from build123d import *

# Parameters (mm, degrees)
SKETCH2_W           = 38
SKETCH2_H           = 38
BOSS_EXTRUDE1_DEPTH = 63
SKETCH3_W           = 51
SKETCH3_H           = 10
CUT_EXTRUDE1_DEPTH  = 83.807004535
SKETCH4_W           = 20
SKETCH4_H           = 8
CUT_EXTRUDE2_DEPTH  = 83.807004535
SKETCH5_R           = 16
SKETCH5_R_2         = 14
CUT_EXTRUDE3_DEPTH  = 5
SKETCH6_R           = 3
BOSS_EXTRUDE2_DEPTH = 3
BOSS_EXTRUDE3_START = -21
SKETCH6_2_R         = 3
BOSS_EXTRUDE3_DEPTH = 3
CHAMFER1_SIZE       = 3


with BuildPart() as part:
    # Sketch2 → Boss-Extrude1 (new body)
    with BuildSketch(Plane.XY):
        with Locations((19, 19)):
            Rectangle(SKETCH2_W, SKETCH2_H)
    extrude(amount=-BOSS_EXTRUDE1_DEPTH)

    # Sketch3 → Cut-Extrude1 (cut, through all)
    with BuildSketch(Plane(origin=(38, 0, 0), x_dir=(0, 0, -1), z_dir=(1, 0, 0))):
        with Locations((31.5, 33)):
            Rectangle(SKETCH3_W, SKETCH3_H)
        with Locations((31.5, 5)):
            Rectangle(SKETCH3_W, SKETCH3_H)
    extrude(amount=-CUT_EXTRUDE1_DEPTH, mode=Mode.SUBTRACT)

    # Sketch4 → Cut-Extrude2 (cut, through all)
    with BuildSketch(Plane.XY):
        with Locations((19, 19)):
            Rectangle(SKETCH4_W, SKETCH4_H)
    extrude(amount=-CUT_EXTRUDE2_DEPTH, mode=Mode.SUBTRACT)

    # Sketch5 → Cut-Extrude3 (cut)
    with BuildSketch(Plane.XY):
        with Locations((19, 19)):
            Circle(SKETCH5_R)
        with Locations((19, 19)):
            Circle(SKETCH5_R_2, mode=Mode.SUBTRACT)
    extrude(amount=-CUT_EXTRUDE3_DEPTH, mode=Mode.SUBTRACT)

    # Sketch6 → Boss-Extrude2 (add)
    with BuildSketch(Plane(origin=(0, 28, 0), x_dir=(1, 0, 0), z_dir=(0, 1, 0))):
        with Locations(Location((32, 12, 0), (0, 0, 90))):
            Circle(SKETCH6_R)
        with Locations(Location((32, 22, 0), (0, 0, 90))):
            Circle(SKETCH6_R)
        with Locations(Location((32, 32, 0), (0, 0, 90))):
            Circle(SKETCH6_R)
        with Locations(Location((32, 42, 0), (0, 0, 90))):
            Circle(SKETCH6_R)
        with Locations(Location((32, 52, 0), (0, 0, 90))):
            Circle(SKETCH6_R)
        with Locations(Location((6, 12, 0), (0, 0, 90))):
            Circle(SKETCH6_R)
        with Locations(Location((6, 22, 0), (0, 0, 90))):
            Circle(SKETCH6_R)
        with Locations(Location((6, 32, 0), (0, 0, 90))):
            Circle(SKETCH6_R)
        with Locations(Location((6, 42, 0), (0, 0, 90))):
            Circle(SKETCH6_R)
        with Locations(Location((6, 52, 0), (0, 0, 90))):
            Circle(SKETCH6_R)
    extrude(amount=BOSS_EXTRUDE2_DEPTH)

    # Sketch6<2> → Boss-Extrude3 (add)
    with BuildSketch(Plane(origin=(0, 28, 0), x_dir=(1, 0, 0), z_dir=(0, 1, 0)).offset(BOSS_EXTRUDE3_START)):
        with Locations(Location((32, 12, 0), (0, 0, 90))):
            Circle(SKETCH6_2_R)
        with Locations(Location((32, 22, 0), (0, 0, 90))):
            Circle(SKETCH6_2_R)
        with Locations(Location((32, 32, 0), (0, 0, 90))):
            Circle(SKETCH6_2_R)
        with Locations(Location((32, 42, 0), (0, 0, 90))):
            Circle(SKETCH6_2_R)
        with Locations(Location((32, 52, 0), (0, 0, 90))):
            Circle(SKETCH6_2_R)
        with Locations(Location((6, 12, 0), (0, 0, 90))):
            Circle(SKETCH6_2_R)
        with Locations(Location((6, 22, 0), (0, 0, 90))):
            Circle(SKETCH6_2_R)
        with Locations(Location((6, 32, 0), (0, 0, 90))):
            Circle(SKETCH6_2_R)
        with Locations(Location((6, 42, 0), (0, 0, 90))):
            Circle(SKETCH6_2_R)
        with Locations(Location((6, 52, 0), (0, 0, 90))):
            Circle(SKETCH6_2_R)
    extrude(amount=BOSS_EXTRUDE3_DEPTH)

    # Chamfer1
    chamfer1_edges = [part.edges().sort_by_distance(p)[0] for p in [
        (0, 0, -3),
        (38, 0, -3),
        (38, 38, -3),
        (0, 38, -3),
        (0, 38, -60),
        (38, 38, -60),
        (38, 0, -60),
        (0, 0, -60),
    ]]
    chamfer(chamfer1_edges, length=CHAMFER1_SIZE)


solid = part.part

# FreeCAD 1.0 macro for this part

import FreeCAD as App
import Part
import Sketcher
Q = App.Units.Quantity


def edges_at(feature, points):
    """Names of the edges that pass closest to the given points."""
    edges = feature.Shape.Edges
    near = lambda p: min(range(len(edges)), key=lambda i: edges[i].distToShape(Part.Vertex(*p))[0])
    return sorted({f"Edge{near(p) + 1}" for p in points})


def add_polygon(sketch, points):
    """Adds a closed chain of lines whose ends are joined by coincident constraints."""
    first, n = sketch.GeometryCount, len(points)
    for a, b in zip(points, points[1:] + points[:1]):
        sketch.addGeometry(Part.LineSegment(App.Vector(*a, 0), App.Vector(*b, 0)), False)
    for i in range(n):
        sketch.addConstraint(Sketcher.Constraint("Coincident", first + i, 2, first + (i + 1) % n, 1))

doc = App.newDocument("Part")
body = doc.addObject("PartDesign::Body", "Body")

# Sketch on XY plane
sketch1 = body.newObject("Sketcher::SketchObject", "Sketch")
sketch1.AttachmentSupport = (doc.getObject("XY_Plane"), [""])
sketch1.MapMode = "FlatFace"
add_polygon(sketch1, [(0, 38), (0, 0), (38, 0), (38, 38)])  # lines 0-3
sketch1.addConstraint([
    Sketcher.Constraint("Vertical", 0),
    Sketcher.Constraint("Horizontal", 1),
    Sketcher.Constraint("Vertical", 2),
    Sketcher.Constraint("Horizontal", 3),
    Sketcher.Constraint("Coincident", 0, 2, -1, 1),
    Sketcher.Constraint("Equal", 3, 0),
    Sketcher.Constraint("DistanceX", 1, 1, 1, 2, Q("38 mm")),
])
pad1 = body.newObject("PartDesign::Pad", "Pad")
pad1.Profile = sketch1
pad1.Length = 63
pad1.Reversed = True

# Sketch on YZ plane
sketch2 = body.newObject("Sketcher::SketchObject", "Sketch001")
sketch2.AttachmentSupport = (doc.getObject("YZ_Plane"), [""])
sketch2.MapMode = "FlatFace"
sketch2.AttachmentOffset = App.Placement(App.Vector(0, 0, 38), App.Rotation())
add_polygon(sketch2, [(38, -6), (28, -6), (28, -57), (38, -57)])  # lines 0-3
add_polygon(sketch2, [(10, -6), (0, -6), (0, -57), (10, -57)])  # lines 4-7
sketch2.addConstraint([
    Sketcher.Constraint("Horizontal", 0),
    Sketcher.Constraint("Vertical", 1),
    Sketcher.Constraint("Horizontal", 2),
    Sketcher.Constraint("Vertical", 3),
    Sketcher.Constraint("Horizontal", 4),
    Sketcher.Constraint("Vertical", 5),
    Sketcher.Constraint("Horizontal", 6),
    Sketcher.Constraint("Vertical", 7),
    Sketcher.Constraint("PointOnObject", 4, 2, -2),
    Sketcher.Constraint("Horizontal", 3, 2, 4, 2),
    Sketcher.Constraint("Horizontal", 2, 2, 5, 2),
    Sketcher.Constraint("Equal", 2, 4),
    Sketcher.Constraint("DistanceX", 0, 2, 0, 1, Q("10 mm")),
    Sketcher.Constraint("DistanceY", 1, 2, 1, 1, Q("51 mm")),
    Sketcher.Constraint("DistanceX", -1, 1, 0, 2, Q("28 mm")),
    Sketcher.Constraint("DistanceY", 0, 2, -1, 1, Q("6 mm")),
])
pocket1 = body.newObject("PartDesign::Pocket", "Pocket")
pocket1.Profile = sketch2
pocket1.Type = "ThroughAll"

# Sketch on XY plane
sketch3 = body.newObject("Sketcher::SketchObject", "Sketch002")
sketch3.AttachmentSupport = (doc.getObject("XY_Plane"), [""])
sketch3.MapMode = "FlatFace"
add_polygon(sketch3, [(9, 23), (9, 15), (29, 15), (29, 23)])  # lines 0-3
sketch3.addConstraint([
    Sketcher.Constraint("Vertical", 0),
    Sketcher.Constraint("Horizontal", 1),
    Sketcher.Constraint("Vertical", 2),
    Sketcher.Constraint("Horizontal", 3),
    Sketcher.Constraint("DistanceX", 1, 1, 1, 2, Q("20 mm")),
    Sketcher.Constraint("DistanceY", 0, 2, 0, 1, Q("8 mm")),
    Sketcher.Constraint("DistanceX", -1, 1, 0, 2, Q("9 mm")),
    Sketcher.Constraint("DistanceY", -1, 1, 0, 2, Q("15 mm")),
])
pocket2 = body.newObject("PartDesign::Pocket", "Pocket001")
pocket2.Profile = sketch3
pocket2.Type = "ThroughAll"

# Sketch on XY plane
sketch4 = body.newObject("Sketcher::SketchObject", "Sketch003")
sketch4.AttachmentSupport = (doc.getObject("XY_Plane"), [""])
sketch4.MapMode = "FlatFace"
sketch4.addGeometry([
    Part.Circle(App.Vector(19, 19, 0), App.Vector(0, 0, 1), 16),
    Part.Circle(App.Vector(19, 19, 0), App.Vector(0, 0, 1), 14),
], False)
sketch4.addConstraint([
    Sketcher.Constraint("Coincident", 1, 3, 0, 3),
    Sketcher.Constraint("Diameter", 0, Q("32 mm")),
    Sketcher.Constraint("Diameter", 1, Q("28 mm")),
    Sketcher.Constraint("DistanceX", -1, 1, 0, 3, Q("19 mm")),
    Sketcher.Constraint("DistanceY", -1, 1, 0, 3, Q("19 mm")),
])
pocket3 = body.newObject("PartDesign::Pocket", "Pocket002")
pocket3.Profile = sketch4
pocket3.Length = 5

# Sketch on XZ plane
sketch5 = body.newObject("Sketcher::SketchObject", "Sketch004")
sketch5.AttachmentSupport = (doc.getObject("XZ_Plane"), [""])
sketch5.MapMode = "FlatFace"
sketch5.AttachmentOffset = App.Placement(App.Vector(0, 0, -28), App.Rotation())
sketch5.addGeometry([
    Part.Circle(App.Vector(32, -12, 0), App.Vector(0, 0, 1), 3),  # 0
    Part.Circle(App.Vector(32, -22, 0), App.Vector(0, 0, 1), 3),  # 1
    Part.Circle(App.Vector(32, -32, 0), App.Vector(0, 0, 1), 3),  # 2
    Part.Circle(App.Vector(32, -42, 0), App.Vector(0, 0, 1), 3),  # 3
    Part.Circle(App.Vector(32, -52, 0), App.Vector(0, 0, 1), 3),  # 4
    Part.Circle(App.Vector(6, -12, 0), App.Vector(0, 0, 1), 3),  # 5
    Part.Circle(App.Vector(6, -22, 0), App.Vector(0, 0, 1), 3),  # 6
    Part.Circle(App.Vector(6, -32, 0), App.Vector(0, 0, 1), 3),  # 7
    Part.Circle(App.Vector(6, -42, 0), App.Vector(0, 0, 1), 3),  # 8
    Part.Circle(App.Vector(6, -52, 0), App.Vector(0, 0, 1), 3),  # 9
], False)
sketch5.addConstraint([
    Sketcher.Constraint("Equal", 0, 1),
    Sketcher.Constraint("Equal", 1, 2),
    Sketcher.Constraint("Equal", 2, 3),
    Sketcher.Constraint("Equal", 3, 4),
    Sketcher.Constraint("Equal", 4, 5),
    Sketcher.Constraint("Equal", 5, 6),
    Sketcher.Constraint("Equal", 6, 7),
    Sketcher.Constraint("Equal", 7, 8),
    Sketcher.Constraint("Equal", 8, 9),
    Sketcher.Constraint("Horizontal", 0, 3, 5, 3),
    Sketcher.Constraint("Horizontal", 1, 3, 6, 3),
    Sketcher.Constraint("Horizontal", 2, 3, 7, 3),
    Sketcher.Constraint("Horizontal", 3, 3, 8, 3),
    Sketcher.Constraint("Horizontal", 4, 3, 9, 3),
    Sketcher.Constraint("Vertical", 0, 3, 1, 3),
    Sketcher.Constraint("Vertical", 1, 3, 2, 3),
    Sketcher.Constraint("Vertical", 2, 3, 3, 3),
    Sketcher.Constraint("Vertical", 3, 3, 4, 3),
    Sketcher.Constraint("Vertical", 5, 3, 6, 3),
    Sketcher.Constraint("Vertical", 6, 3, 7, 3),
    Sketcher.Constraint("Vertical", 7, 3, 8, 3),
    Sketcher.Constraint("Vertical", 8, 3, 9, 3),
    Sketcher.Constraint("Diameter", 0, Q("6 mm")),
    Sketcher.Constraint("DistanceX", -1, 1, 0, 3, Q("32 mm")),
    Sketcher.Constraint("DistanceY", 0, 3, -1, 1, Q("12 mm")),
    Sketcher.Constraint("DistanceY", 1, 3, -1, 1, Q("22 mm")),
    Sketcher.Constraint("DistanceY", 2, 3, -1, 1, Q("32 mm")),
    Sketcher.Constraint("DistanceY", 3, 3, -1, 1, Q("42 mm")),
    Sketcher.Constraint("DistanceY", 4, 3, -1, 1, Q("52 mm")),
    Sketcher.Constraint("DistanceX", -1, 1, 5, 3, Q("6 mm")),
])
pad2 = body.newObject("PartDesign::Pad", "Pad001")
pad2.Profile = sketch5
pad2.Length = 3
pad2.Reversed = True

# Sketch on XZ plane
sketch6 = body.newObject("Sketcher::SketchObject", "Sketch005")
sketch6.AttachmentSupport = (doc.getObject("XZ_Plane"), [""])
sketch6.MapMode = "FlatFace"
sketch6.AttachmentOffset = App.Placement(App.Vector(0, 0, -7), App.Rotation())
sketch6.addGeometry([
    Part.Circle(App.Vector(32, -12, 0), App.Vector(0, 0, 1), 3),  # 0
    Part.Circle(App.Vector(32, -22, 0), App.Vector(0, 0, 1), 3),  # 1
    Part.Circle(App.Vector(32, -32, 0), App.Vector(0, 0, 1), 3),  # 2
    Part.Circle(App.Vector(32, -42, 0), App.Vector(0, 0, 1), 3),  # 3
    Part.Circle(App.Vector(32, -52, 0), App.Vector(0, 0, 1), 3),  # 4
    Part.Circle(App.Vector(6, -12, 0), App.Vector(0, 0, 1), 3),  # 5
    Part.Circle(App.Vector(6, -22, 0), App.Vector(0, 0, 1), 3),  # 6
    Part.Circle(App.Vector(6, -32, 0), App.Vector(0, 0, 1), 3),  # 7
    Part.Circle(App.Vector(6, -42, 0), App.Vector(0, 0, 1), 3),  # 8
    Part.Circle(App.Vector(6, -52, 0), App.Vector(0, 0, 1), 3),  # 9
], False)
sketch6.addConstraint([
    Sketcher.Constraint("Equal", 0, 1),
    Sketcher.Constraint("Equal", 1, 2),
    Sketcher.Constraint("Equal", 2, 3),
    Sketcher.Constraint("Equal", 3, 4),
    Sketcher.Constraint("Equal", 4, 5),
    Sketcher.Constraint("Equal", 5, 6),
    Sketcher.Constraint("Equal", 6, 7),
    Sketcher.Constraint("Equal", 7, 8),
    Sketcher.Constraint("Equal", 8, 9),
    Sketcher.Constraint("Horizontal", 0, 3, 5, 3),
    Sketcher.Constraint("Horizontal", 1, 3, 6, 3),
    Sketcher.Constraint("Horizontal", 2, 3, 7, 3),
    Sketcher.Constraint("Horizontal", 3, 3, 8, 3),
    Sketcher.Constraint("Horizontal", 4, 3, 9, 3),
    Sketcher.Constraint("Vertical", 0, 3, 1, 3),
    Sketcher.Constraint("Vertical", 1, 3, 2, 3),
    Sketcher.Constraint("Vertical", 2, 3, 3, 3),
    Sketcher.Constraint("Vertical", 3, 3, 4, 3),
    Sketcher.Constraint("Vertical", 5, 3, 6, 3),
    Sketcher.Constraint("Vertical", 6, 3, 7, 3),
    Sketcher.Constraint("Vertical", 7, 3, 8, 3),
    Sketcher.Constraint("Vertical", 8, 3, 9, 3),
    Sketcher.Constraint("Diameter", 0, Q("6 mm")),
    Sketcher.Constraint("DistanceX", -1, 1, 0, 3, Q("32 mm")),
    Sketcher.Constraint("DistanceY", 0, 3, -1, 1, Q("12 mm")),
    Sketcher.Constraint("DistanceY", 1, 3, -1, 1, Q("22 mm")),
    Sketcher.Constraint("DistanceY", 2, 3, -1, 1, Q("32 mm")),
    Sketcher.Constraint("DistanceY", 3, 3, -1, 1, Q("42 mm")),
    Sketcher.Constraint("DistanceY", 4, 3, -1, 1, Q("52 mm")),
    Sketcher.Constraint("DistanceX", -1, 1, 5, 3, Q("6 mm")),
])
pad3 = body.newObject("PartDesign::Pad", "Pad002")
pad3.Profile = sketch6
pad3.Length = 3
pad3.Reversed = True
doc.recompute()

chamfer = body.newObject("PartDesign::Chamfer", "Chamfer")
chamfer.Base = (pad3, edges_at(pad3, [
    (0, 0, -3),
    (38, 0, -3),
    (38, 38, -3),
    (0, 38, -3),
    (0, 38, -60),
    (38, 38, -60),
    (38, 0, -60),
    (0, 0, -60),
]))
chamfer.Size = 3

doc.recompute()
